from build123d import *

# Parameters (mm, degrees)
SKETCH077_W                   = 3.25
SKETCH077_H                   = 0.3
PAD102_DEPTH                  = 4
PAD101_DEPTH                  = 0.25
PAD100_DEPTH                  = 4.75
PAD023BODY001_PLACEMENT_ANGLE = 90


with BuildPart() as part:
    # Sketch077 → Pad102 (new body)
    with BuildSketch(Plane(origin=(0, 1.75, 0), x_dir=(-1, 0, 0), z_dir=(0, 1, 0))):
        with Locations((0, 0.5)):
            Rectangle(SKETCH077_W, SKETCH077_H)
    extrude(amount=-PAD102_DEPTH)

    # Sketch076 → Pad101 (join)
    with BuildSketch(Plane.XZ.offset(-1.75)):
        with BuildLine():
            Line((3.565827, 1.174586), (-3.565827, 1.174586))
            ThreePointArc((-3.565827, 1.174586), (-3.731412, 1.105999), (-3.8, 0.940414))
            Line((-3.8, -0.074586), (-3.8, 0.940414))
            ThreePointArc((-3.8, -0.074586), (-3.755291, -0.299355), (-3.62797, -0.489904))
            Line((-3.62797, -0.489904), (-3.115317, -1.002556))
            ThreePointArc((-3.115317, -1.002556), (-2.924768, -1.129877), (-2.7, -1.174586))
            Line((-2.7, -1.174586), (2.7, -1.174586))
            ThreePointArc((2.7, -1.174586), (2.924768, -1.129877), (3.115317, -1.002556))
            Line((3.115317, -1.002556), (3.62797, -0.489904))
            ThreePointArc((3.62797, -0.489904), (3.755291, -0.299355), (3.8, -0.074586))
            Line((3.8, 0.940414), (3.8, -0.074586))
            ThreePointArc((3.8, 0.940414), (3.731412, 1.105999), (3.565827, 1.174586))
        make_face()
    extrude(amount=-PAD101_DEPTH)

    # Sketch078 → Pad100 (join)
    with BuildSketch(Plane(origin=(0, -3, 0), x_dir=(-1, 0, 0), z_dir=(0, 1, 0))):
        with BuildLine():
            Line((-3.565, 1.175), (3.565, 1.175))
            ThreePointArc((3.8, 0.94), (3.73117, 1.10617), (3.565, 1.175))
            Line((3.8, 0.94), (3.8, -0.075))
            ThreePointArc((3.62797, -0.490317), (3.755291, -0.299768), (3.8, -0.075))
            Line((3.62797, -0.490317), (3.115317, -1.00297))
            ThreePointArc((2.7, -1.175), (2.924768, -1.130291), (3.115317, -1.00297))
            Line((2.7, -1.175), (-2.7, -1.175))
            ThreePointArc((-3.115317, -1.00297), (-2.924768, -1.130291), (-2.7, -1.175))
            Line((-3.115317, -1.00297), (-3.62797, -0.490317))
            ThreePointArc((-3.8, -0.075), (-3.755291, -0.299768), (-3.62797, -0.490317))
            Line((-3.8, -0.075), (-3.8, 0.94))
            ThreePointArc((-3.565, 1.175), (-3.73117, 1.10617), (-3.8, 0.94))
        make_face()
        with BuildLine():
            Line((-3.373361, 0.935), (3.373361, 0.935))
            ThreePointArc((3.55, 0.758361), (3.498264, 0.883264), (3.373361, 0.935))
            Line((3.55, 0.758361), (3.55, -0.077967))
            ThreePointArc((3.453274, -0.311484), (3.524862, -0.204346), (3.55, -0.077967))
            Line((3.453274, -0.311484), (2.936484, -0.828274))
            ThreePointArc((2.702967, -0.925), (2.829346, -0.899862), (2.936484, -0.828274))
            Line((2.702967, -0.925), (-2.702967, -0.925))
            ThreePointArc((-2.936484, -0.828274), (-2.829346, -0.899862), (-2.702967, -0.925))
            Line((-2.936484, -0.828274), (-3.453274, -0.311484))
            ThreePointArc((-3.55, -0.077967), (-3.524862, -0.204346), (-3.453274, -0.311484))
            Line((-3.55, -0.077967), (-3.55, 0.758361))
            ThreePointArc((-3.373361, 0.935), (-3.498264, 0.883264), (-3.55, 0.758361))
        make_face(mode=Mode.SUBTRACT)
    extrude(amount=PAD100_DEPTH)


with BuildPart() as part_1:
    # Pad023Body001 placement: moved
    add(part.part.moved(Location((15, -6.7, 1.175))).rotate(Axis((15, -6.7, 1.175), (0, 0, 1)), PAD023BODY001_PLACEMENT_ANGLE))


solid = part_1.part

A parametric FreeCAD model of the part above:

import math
import FreeCAD as App
import Part
import Sketcher
from FreeCAD import Vector
Q = App.Units.Quantity


def add_polygon(sketch, points):
    """Adds a closed chain of lines whose ends are joined by coincident constraints."""
    first, n = sketch.GeometryCount, len(points)
    for a, b in zip(points, points[1:] + points[:1]):
        sketch.addGeometry(Part.LineSegment(App.Vector(*a, 0), App.Vector(*b, 0)), False)
    for i in range(n):
        sketch.addConstraint(Sketcher.Constraint("Coincident", first + i, 2, first + (i + 1) % n, 1))

doc = App.newDocument("Part")
params = doc.addObject("Spreadsheet::Sheet", "Params")
for row, (alias, value) in enumerate([
    ("sketch1_height", "0.3 mm"),
    ("sketch1_width", "3.25 mm"),
    ("pad1_length", "4 mm"),
    ("sketch2_width", "5.4 mm"),
    ("pad2_length", "0.25 mm"),
    ("sketch3_width", "5.4 mm"),
    ("sketch3_width2", "7.13 mm"),
    ("pad3_length", "4.75 mm"),
], start=1):
    params.set(f"A{row}", alias)
    params.set(f"B{row}", "=" + value)
    params.setAlias(f"B{row}", alias)

body = doc.addObject("PartDesign::Body", "Body")

sketch1 = doc.addObject("Sketcher::SketchObject", "Sketch")
body.addObject(sketch1)
sketch1.AttachmentSupport = (doc.XZ_Plane, [""])
sketch1.MapMode = "FlatFace"
sketch1.AttachmentOffset = App.Placement(Vector(0, 0, -1.75), App.Rotation())
add_polygon(sketch1, [(1.62, 0.65), (1.62, 0.35), (-1.62, 0.35), (-1.62, 0.65)])
sketch1.addConstraint([
    Sketcher.Constraint("Vertical", 0),
    Sketcher.Constraint("Horizontal", 1),
    Sketcher.Constraint("Vertical", 2),
    Sketcher.Constraint("Horizontal", 3),
    Sketcher.Constraint("DistanceY", 0, 2, 0, 1, Q("0.3 mm")),
    Sketcher.Constraint("DistanceX", 1, 2, 1, 1, Q("3.25 mm")),
    Sketcher.Constraint("DistanceY", -1, 1, 0, 2, Q("0.35 mm")),
    Sketcher.Constraint("DistanceX", -1, 1, 0, 2, Q("1.625 mm")),
])
sketch1.setExpression("Constraints[8]", "Params.sketch1_height")
sketch1.setExpression("Constraints[9]", "Params.sketch1_width")
pad1 = doc.addObject("PartDesign::Pad", "Pad")
body.addObject(pad1)
pad1.Profile = sketch1
pad1.setExpression("Length", "Params.pad1_length")

sketch2 = doc.addObject("Sketcher::SketchObject", "Sketch001")
body.addObject(sketch2)
sketch2.AttachmentSupport = (doc.XZ_Plane, [""])
sketch2.MapMode = "FlatFace"
sketch2.AttachmentOffset = App.Placement(Vector(0, 0, -1.75), App.Rotation())
sketch2.addGeometry([
    Part.LineSegment(Vector(3.57, 1.17, 0), Vector(-3.57, 1.17, 0)),
    Part.ArcOfCircle(Part.Circle(Vector(-3.57, 0.94, 0), Vector(0, 0, 1), 0.23), math.radians(90), math.radians(180)),
    Part.LineSegment(Vector(-3.8, 0.94, 0), Vector(-3.8, -0.07, 0)),
    Part.ArcOfCircle(Part.Circle(Vector(-3.21, -0.07, 0), Vector(0, 0, 1), 0.59), math.radians(180), math.radians(225)),
    Part.LineSegment(Vector(-3.63, -0.49, 0), Vector(-3.12, -1, 0)),
    Part.ArcOfCircle(Part.Circle(Vector(-2.7, -0.59, 0), Vector(0, 0, 1), 0.59), math.radians(-135), math.radians(-90)),
    Part.LineSegment(Vector(-2.7, -1.17, 0), Vector(2.7, -1.17, 0)),
    Part.ArcOfCircle(Part.Circle(Vector(2.7, -0.59, 0), Vector(0, 0, 1), 0.59), math.radians(-90), math.radians(-45)),
    Part.LineSegment(Vector(3.12, -1, 0), Vector(3.63, -0.49, 0)),
    Part.ArcOfCircle(Part.Circle(Vector(3.21, -0.07, 0), Vector(0, 0, 1), 0.59), math.radians(-45), math.radians(0)),
    Part.LineSegment(Vector(3.8, -0.07, 0), Vector(3.8, 0.94, 0)),
    Part.ArcOfCircle(Part.Circle(Vector(3.57, 0.94, 0), Vector(0, 0, 1), 0.23), math.radians(0), math.radians(90)),
], False)
sketch2.addConstraint([
    Sketcher.Constraint("Coincident", 0, 2, 1, 1),
    Sketcher.Constraint("Tangent", 1, 2, 2, 1),
    Sketcher.Constraint("Coincident", 2, 2, 3, 1),
    Sketcher.Constraint("Tangent", 3, 2, 4, 1),
    Sketcher.Constraint("Coincident", 4, 2, 5, 1),
    Sketcher.Constraint("Tangent", 5, 2, 6, 1),
    Sketcher.Constraint("Tangent", 6, 2, 7, 1),
    Sketcher.Constraint("Coincident", 7, 2, 8, 1),
    Sketcher.Constraint("Tangent", 8, 2, 9, 1),
    Sketcher.Constraint("Coincident", 9, 2, 10, 1),
    Sketcher.Constraint("Tangent", 10, 2, 11, 1),
    Sketcher.Constraint("Coincident", 11, 2, 0, 1),
    Sketcher.Constraint("Horizontal", 0),
    Sketcher.Constraint("Vertical", 2),
    Sketcher.Constraint("Horizontal", 6),
    Sketcher.Constraint("Vertical", 10),
    Sketcher.Constraint("Equal", 3, 5),
    Sketcher.Constraint("Equal", 5, 7),
    Sketcher.Constraint("Equal", 7, 9),
    Sketcher.Constraint("Equal", 1, 11),
    Sketcher.Constraint("Symmetric", 3, 3, 9, 3, -2),
    Sketcher.Constraint("Symmetric", 4, 2, 7, 2, -2),
    Sketcher.Constraint("Perpendicular", 4, 8),
    Sketcher.Constraint("Horizontal", 9, 3, 2, 2),
    Sketcher.Constraint("Horizontal", 2, 2, 9, 2),
    Sketcher.Constraint("Vertical", 1, 3, 0, 2),
    Sketcher.Constraint("DistanceX", 6, 1, 6, 2, Q("5.4 mm")),
    Sketcher.Constraint("DistanceX", 1, 2, -1, 1, Q("3.8 mm")),
    Sketcher.Constraint("DistanceY", 2, 2, 2, 1, Q("1.015 mm")),
    Sketcher.Constraint("Distance", 4, Q("0.725 mm")),
    Sketcher.Constraint("Radius", 1, Q("0.234172 mm")),
    Sketcher.Constraint("Radius", 3, Q("0.587345 mm")),
    Sketcher.Constraint("DistanceX", 0, 2, 0, 1, Q("7.131654 mm")),
    Sketcher.Constraint("DistanceY", 5, 3, -1, 1, Q("0.587241 mm")),
])
sketch2.setExpression("Constraints[26]", "Params.sketch2_width")
pad2 = doc.addObject("PartDesign::Pad", "Pad001")
body.addObject(pad2)
pad2.Profile = sketch2
pad2.setExpression("Length", "Params.pad2_length")
pad2.Reversed = True

sketch3 = doc.addObject("Sketcher::SketchObject", "Sketch002")
body.addObject(sketch3)
sketch3.AttachmentSupport = (doc.XZ_Plane, [""])
sketch3.MapMode = "FlatFace"
sketch3.AttachmentOffset = App.Placement(Vector(0, 0, 3), App.Rotation())
sketch3.addGeometry([
    Part.LineSegment(Vector(-3.56, 1.18, 0), Vector(3.56, 1.18, 0)),
    Part.ArcOfCircle(Part.Circle(Vector(3.56, 0.94, 0), Vector(0, 0, 1), 0.24), math.radians(0), math.radians(90)),
    Part.LineSegment(Vector(3.8, 0.94, 0), Vector(3.8, -0.07, 0)),
    Part.ArcOfCircle(Part.Circle(Vector(3.21, -0.08, 0), Vector(0, 0, 1), 0.59), math.radians(-45), math.radians(0)),
    Part.LineSegment(Vector(3.63, -0.49, 0), Vector(3.12, -1, 0)),
    Part.ArcOfCircle(Part.Circle(Vector(2.7, -0.59, 0), Vector(0, 0, 1), 0.59), math.radians(-90), math.radians(-45)),
    Part.LineSegment(Vector(2.7, -1.18, 0), Vector(-2.7, -1.18, 0)),
    Part.ArcOfCircle(Part.Circle(Vector(-2.7, -0.59, 0), Vector(0, 0, 1), 0.59), math.radians(-135), math.radians(-90)),
    Part.LineSegment(Vector(-3.12, -1, 0), Vector(-3.63, -0.49, 0)),
    Part.ArcOfCircle(Part.Circle(Vector(-3.21, -0.08, 0), Vector(0, 0, 1), 0.59), math.radians(180), math.radians(225)),
    Part.LineSegment(Vector(-3.8, -0.07, 0), Vector(-3.8, 0.94, 0)),
    Part.ArcOfCircle(Part.Circle(Vector(-3.56, 0.94, 0), Vector(0, 0, 1), 0.24), math.radians(90), math.radians(180)),
    Part.LineSegment(Vector(3.37, 0.94, 0), Vector(-3.37, 0.94, 0)),
    Part.ArcOfCircle(Part.Circle(Vector(-3.37, 0.76, 0), Vector(0, 0, 1), 0.18), math.radians(90), math.radians(180)),
    Part.LineSegment(Vector(-3.55, 0.76, 0), Vector(-3.55, -0.08, 0)),
    Part.ArcOfCircle(Part.Circle(Vector(-3.22, -0.08, 0), Vector(0, 0, 1), 0.33), math.radians(180), math.radians(225)),
    Part.LineSegment(Vector(-3.45, -0.31, 0), Vector(-2.94, -0.83, 0)),
    Part.ArcOfCircle(Part.Circle(Vector(-2.7, -0.59, 0), Vector(0, 0, 1), 0.33), math.radians(-135), math.radians(-90)),
    Part.LineSegment(Vector(-2.7, -0.93, 0), Vector(2.7, -0.93, 0)),
    Part.ArcOfCircle(Part.Circle(Vector(2.7, -0.59, 0), Vector(0, 0, 1), 0.33), math.radians(-90), math.radians(-45)),
    Part.LineSegment(Vector(2.94, -0.83, 0), Vector(3.45, -0.31, 0)),
    Part.ArcOfCircle(Part.Circle(Vector(3.22, -0.08, 0), Vector(0, 0, 1), 0.33), math.radians(-45), math.radians(0)),
    Part.LineSegment(Vector(3.55, -0.08, 0), Vector(3.55, 0.76, 0)),
    Part.ArcOfCircle(Part.Circle(Vector(3.37, 0.76, 0), Vector(0, 0, 1), 0.18), math.radians(0), math.radians(90)),
], False)
sketch3.addConstraint([
    Sketcher.Constraint("Tangent", 0, 2, 1, 2),
    Sketcher.Constraint("Tangent", 1, 1, 2, 1),
    Sketcher.Constraint("Tangent", 2, 2, 3, 2),
    Sketcher.Constraint("Tangent", 3, 1, 4, 1),
    Sketcher.Constraint("Tangent", 4, 2, 5, 2),
    Sketcher.Constraint("Tangent", 5, 1, 6, 1),
    Sketcher.Constraint("Tangent", 6, 2, 7, 2),
    Sketcher.Constraint("Tangent", 7, 1, 8, 1),
    Sketcher.Constraint("Tangent", 8, 2, 9, 2),
    Sketcher.Constraint("Tangent", 9, 1, 10, 1),
    Sketcher.Constraint("Tangent", 10, 2, 11, 2),
    Sketcher.Constraint("Tangent", 11, 1, 0, 1),
    Sketcher.Constraint("Coincident", 12, 2, 13, 1),
    Sketcher.Constraint("Coincident", 13, 2, 14, 1),
    Sketcher.Constraint("Coincident", 14, 2, 15, 1),
    Sketcher.Constraint("Coincident", 15, 2, 16, 1),
    Sketcher.Constraint("Coincident", 16, 2, 17, 1),
    Sketcher.Constraint("Coincident", 17, 2, 18, 1),
    Sketcher.Constraint("Coincident", 18, 2, 19, 1),
    Sketcher.Constraint("Coincident", 19, 2, 20, 1),
    Sketcher.Constraint("Coincident", 20, 2, 21, 1),
    Sketcher.Constraint("Coincident", 21, 2, 22, 1),
    Sketcher.Constraint("Coincident", 22, 2, 23, 1),
    Sketcher.Constraint("Coincident", 23, 2, 12, 1),
    Sketcher.Constraint("Horizontal", 0),
    Sketcher.Constraint("Vertical", 2),
    Sketcher.Constraint("Horizontal", 6),
    Sketcher.Constraint("Vertical", 10),
    Sketcher.Constraint("Horizontal", 12),
    Sketcher.Constraint("Vertical", 14),
    Sketcher.Constraint("Horizontal", 18),
    Sketcher.Constraint("Vertical", 22),
    Sketcher.Constraint("Equal", 3, 5),
    Sketcher.Constraint("Equal", 5, 7),
    Sketcher.Constraint("Equal", 7, 9),
    Sketcher.Constraint("Equal", 1, 11),
    Sketcher.Constraint("Equal", 15, 17),
    Sketcher.Constraint("Equal", 17, 19),
    Sketcher.Constraint("Equal", 19, 21),
    Sketcher.Constraint("Equal", 13, 23),
    Sketcher.Constraint("Symmetric", 3, 3, 9, 3, -2),
    Sketcher.Constraint("Symmetric", 15, 3, 21, 3, -2),
    Sketcher.Constraint("Symmetric", 16, 2, 19, 2, -2),
    Sketcher.Constraint("Perpendicular", 4, 8),
    Sketcher.Constraint("Parallel", 8, 16),
    Sketcher.Constraint("Perpendicular", 16, 20),
    Sketcher.Constraint("Horizontal", 23, 3, 13, 2),
    Sketcher.Constraint("Horizontal", 15, 2, 20, 2),
    Sketcher.Constraint("Horizontal", 14, 2, 21, 2),
    Sketcher.Constraint("Horizontal", 13, 2, 22, 2),
    Sketcher.Constraint("Vertical", 13, 3, 12, 2),
    Sketcher.Constraint("DistanceX", 6, 2, 6, 1, Q("5.4 mm")),
    Sketcher.Constraint("Radius", 1, Q("0.235 mm")),
    Sketcher.Constraint("DistanceX", 0, 1, 0, 2, Q("7.13 mm")),
    Sketcher.Constraint("DistanceY", 2, 2, 2, 1, Q("1.015 mm")),
    Sketcher.Constraint("DistanceY", -1, 1, 1, 3, Q("0.94 mm")),
    Sketcher.Constraint("DistanceX", 13, 2, -1, 1, Q("3.55 mm")),
    Sketcher.Constraint("DistanceY", 12, 2, 11, 1, Q("0.24 mm")),
    Sketcher.Constraint("DistanceY", 6, 2, 17, 2, Q("0.25 mm")),
    Sketcher.Constraint("Distance", 4, Q("0.725001 mm")),
    Sketcher.Constraint("Radius", 13, Q("0.176638 mm")),
    Sketcher.Constraint("Radius", 15, Q("0.330237 mm")),
    Sketcher.Constraint("DistanceX", 19, 3, 3, 1, Q("0.925001 mm")),
    Sketcher.Constraint("Distance", 16, Q("0.730851 mm")),
    Sketcher.Constraint("DistanceX", 12, 2, 12, 1, Q("6.746722 mm")),
    Sketcher.Constraint("DistanceX", 18, 1, 18, 2, Q("5.405934 mm")),
    Sketcher.Constraint("DistanceY", 14, 2, 14, 1, Q("0.836328 mm")),
    Sketcher.Constraint("DistanceX", 15, 2, 15, 3, Q("0.233511 mm")),
    Sketcher.Constraint("DistanceX", 7, 1, 17, 2, Q("0.41235 mm")),
])
sketch3.setExpression("Constraints[51]", "Params.sketch3_width")
sketch3.setExpression("Constraints[53]", "Params.sketch3_width2")
pad3 = doc.addObject("PartDesign::Pad", "Pad002")
body.addObject(pad3)
pad3.Profile = sketch3
pad3.setExpression("Length", "Params.pad3_length")
pad3.Reversed = True
body2 = doc.addObject("PartDesign::Body", "Body001")
doc.recompute()

body.Placement = App.Placement(Vector(15, -6.7, 1.175), App.Rotation(Vector(0, 0, 1), 90))
boolean = doc.addObject("PartDesign::Boolean", "Boolean")
body2.addObject(boolean)
boolean.Type = "Fuse"
boolean.addObjects([body])

doc.recompute()
